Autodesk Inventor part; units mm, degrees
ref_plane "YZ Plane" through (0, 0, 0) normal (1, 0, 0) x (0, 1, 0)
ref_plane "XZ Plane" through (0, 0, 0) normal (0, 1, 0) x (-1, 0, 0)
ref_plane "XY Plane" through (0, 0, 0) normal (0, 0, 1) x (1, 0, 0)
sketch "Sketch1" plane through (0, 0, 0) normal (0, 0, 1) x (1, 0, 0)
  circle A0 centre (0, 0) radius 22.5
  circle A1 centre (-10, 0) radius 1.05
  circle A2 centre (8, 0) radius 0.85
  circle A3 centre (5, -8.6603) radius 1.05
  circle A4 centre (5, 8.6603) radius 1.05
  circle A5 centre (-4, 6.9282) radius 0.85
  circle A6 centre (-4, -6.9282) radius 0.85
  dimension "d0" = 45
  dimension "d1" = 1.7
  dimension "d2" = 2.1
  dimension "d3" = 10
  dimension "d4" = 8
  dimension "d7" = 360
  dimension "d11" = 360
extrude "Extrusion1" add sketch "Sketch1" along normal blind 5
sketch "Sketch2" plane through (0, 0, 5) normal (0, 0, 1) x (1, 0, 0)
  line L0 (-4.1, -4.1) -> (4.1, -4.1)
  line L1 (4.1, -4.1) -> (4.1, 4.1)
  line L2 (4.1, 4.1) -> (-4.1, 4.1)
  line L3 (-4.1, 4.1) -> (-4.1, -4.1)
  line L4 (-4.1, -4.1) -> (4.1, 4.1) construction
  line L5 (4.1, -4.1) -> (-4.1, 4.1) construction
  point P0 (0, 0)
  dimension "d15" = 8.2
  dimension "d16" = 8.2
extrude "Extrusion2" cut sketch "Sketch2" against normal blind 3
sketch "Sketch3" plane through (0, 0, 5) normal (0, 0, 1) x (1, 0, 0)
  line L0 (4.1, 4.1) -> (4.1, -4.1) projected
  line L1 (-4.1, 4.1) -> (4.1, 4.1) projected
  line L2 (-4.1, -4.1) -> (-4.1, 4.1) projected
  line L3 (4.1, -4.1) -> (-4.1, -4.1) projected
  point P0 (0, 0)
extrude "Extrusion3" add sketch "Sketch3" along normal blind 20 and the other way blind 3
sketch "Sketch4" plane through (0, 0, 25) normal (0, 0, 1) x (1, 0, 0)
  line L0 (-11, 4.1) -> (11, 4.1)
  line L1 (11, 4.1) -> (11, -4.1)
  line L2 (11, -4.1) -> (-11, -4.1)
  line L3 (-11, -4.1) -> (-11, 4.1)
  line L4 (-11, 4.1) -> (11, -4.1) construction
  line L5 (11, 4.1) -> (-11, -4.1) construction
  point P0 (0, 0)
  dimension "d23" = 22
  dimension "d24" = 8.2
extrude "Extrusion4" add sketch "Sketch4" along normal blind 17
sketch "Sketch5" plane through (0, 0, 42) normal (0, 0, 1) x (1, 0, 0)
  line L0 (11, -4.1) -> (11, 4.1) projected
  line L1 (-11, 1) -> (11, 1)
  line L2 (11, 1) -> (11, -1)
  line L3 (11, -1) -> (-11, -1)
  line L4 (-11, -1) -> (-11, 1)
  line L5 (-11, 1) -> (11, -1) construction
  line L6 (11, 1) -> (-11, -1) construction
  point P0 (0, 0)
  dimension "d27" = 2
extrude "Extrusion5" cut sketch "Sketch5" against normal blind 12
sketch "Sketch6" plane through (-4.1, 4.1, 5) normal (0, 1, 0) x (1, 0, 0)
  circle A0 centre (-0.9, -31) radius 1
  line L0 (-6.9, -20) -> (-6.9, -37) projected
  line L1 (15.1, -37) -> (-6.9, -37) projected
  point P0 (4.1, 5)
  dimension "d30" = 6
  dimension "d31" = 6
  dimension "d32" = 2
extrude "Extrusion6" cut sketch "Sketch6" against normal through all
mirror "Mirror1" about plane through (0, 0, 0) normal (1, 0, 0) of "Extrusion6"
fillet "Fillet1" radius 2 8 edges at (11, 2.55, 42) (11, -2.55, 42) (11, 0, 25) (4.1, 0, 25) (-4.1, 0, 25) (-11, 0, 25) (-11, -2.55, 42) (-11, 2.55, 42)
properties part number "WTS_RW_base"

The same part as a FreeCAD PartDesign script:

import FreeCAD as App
import Part
import Sketcher

V = App.Vector
Q = App.Units.Quantity


def edges_at(feature, points):
    """Names of the edges that pass closest to the given points."""
    edges = feature.Shape.Edges
    near = lambda p: min(range(len(edges)), key=lambda i: edges[i].distToShape(Part.Vertex(*p))[0])
    return sorted({f"Edge{near(p) + 1}" for p in points})

doc = App.newDocument("Part")
body = doc.addObject("PartDesign::Body", "Body")

# Sketch on XY plane
sketch1 = doc.addObject("Sketcher::SketchObject", "Sketch")
body.addObject(sketch1)
sketch1.AttachmentSupport = (doc.XY_Plane, [""])
sketch1.MapMode = "FlatFace"
sketch1.addGeometry([
    Part.Circle(V(0, 0, 0), V(0, 0, 1), 22.5),  # 0
    Part.Circle(V(-4, -6.9, 0), V(0, 0, 1), 0.8),  # 1
    Part.Circle(V(5, -8.7, 0), V(0, 0, 1), 1.1),  # 2
    Part.Circle(V(-10, 0, 0), V(0, 0, 1), 1.1),  # 3
    Part.Circle(V(-4, 6.9, 0), V(0, 0, 1), 0.8),  # 4
    Part.Circle(V(8, 0, 0), V(0, 0, 1), 0.8),  # 5
    Part.Circle(V(5, 8.7, 0), V(0, 0, 1), 1.1),  # 6
], False)
sketch1.addConstraint([
    Sketcher.Constraint("Coincident", 0, 3, -1, 1),
    Sketcher.Constraint("Equal", 2, 3),
    Sketcher.Constraint("Equal", 1, 4),
    Sketcher.Constraint("Equal", 4, 5),
    Sketcher.Constraint("Equal", 3, 6),
    Sketcher.Constraint("Symmetric", 1, 3, 4, 3, -1),
    Sketcher.Constraint("Symmetric", 2, 3, 6, 3, -1),
    Sketcher.Constraint("PointOnObject", 3, 3, -1),
    Sketcher.Constraint("PointOnObject", 5, 3, -1),
    Sketcher.Constraint("Diameter", 0, Q("45 mm")),
    Sketcher.Constraint("Diameter", 1, Q("1.7 mm")),
    Sketcher.Constraint("Diameter", 2, Q("2.1 mm")),
    Sketcher.Constraint("DistanceX", 3, 3, -1, 1, Q("10 mm")),
    Sketcher.Constraint("DistanceX", -1, 1, 5, 3, Q("8 mm")),
    Sketcher.Constraint("DistanceX", 1, 3, -1, 1, Q("4 mm")),
    Sketcher.Constraint("DistanceX", -1, 1, 2, 3, Q("5 mm")),
    Sketcher.Constraint("DistanceY", 2, 3, 1, 3, Q("1.732 mm")),
    Sketcher.Constraint("DistanceY", 1, 3, -1, 1, Q("6.9282 mm")),
])
pad1 = doc.addObject("PartDesign::Pad", "Pad")
body.addObject(pad1)
pad1.Profile = sketch1
pad1.Length = 5

# Sketch on XY plane
sketch2 = doc.addObject("Sketcher::SketchObject", "Sketch001")
body.addObject(sketch2)
sketch2.AttachmentSupport = (doc.XY_Plane, [""])
sketch2.MapMode = "FlatFace"
sketch2.AttachmentOffset = App.Placement(V(0, 0, 5), App.Rotation())
sketch2.addGeometry([
    Part.LineSegment(V(-4, 4, 0), V(-4, -4, 0)),
    Part.LineSegment(V(-4, -4, 0), V(4, -4, 0)),
    Part.LineSegment(V(4, -4, 0), V(4, 4, 0)),
    Part.LineSegment(V(4, 4, 0), V(-4, 4, 0)),
], False)
sketch2.addConstraint([
    Sketcher.Constraint("Coincident", 0, 2, 1, 1),
    Sketcher.Constraint("Coincident", 1, 2, 2, 1),
    Sketcher.Constraint("Coincident", 2, 2, 3, 1),
    Sketcher.Constraint("Coincident", 3, 2, 0, 1),
    Sketcher.Constraint("Vertical", 0),
    Sketcher.Constraint("Horizontal", 1),
    Sketcher.Constraint("Vertical", 2),
    Sketcher.Constraint("Horizontal", 3),
    Sketcher.Constraint("Symmetric", 0, 2, 2, 2, -1, 1),
    Sketcher.Constraint("Equal", 3, 0),
    Sketcher.Constraint("DistanceX", 1, 1, 1, 2, Q("8.2 mm")),
])
pocket1 = doc.addObject("PartDesign::Pocket", "Pocket")
body.addObject(pocket1)
pocket1.Profile = sketch2
pocket1.Length = 3

# Sketch on XY plane
sketch3 = doc.addObject("Sketcher::SketchObject", "Sketch002")
body.addObject(sketch3)
sketch3.AttachmentSupport = (doc.XY_Plane, [""])
sketch3.MapMode = "FlatFace"
sketch3.AttachmentOffset = App.Placement(V(0, 0, 5), App.Rotation())
sketch3.addGeometry([
    Part.LineSegment(V(4, -4, 0), V(4, 4, 0)),
    Part.LineSegment(V(4, 4, 0), V(-4, 4, 0)),
    Part.LineSegment(V(-4, 4, 0), V(-4, -4, 0)),
    Part.LineSegment(V(-4, -4, 0), V(4, -4, 0)),
], False)
sketch3.addConstraint([
    Sketcher.Constraint("Coincident", 0, 2, 1, 1),
    Sketcher.Constraint("Coincident", 1, 2, 2, 1),
    Sketcher.Constraint("Coincident", 2, 2, 3, 1),
    Sketcher.Constraint("Coincident", 3, 2, 0, 1),
    Sketcher.Constraint("Vertical", 0),
    Sketcher.Constraint("Horizontal", 1),
    Sketcher.Constraint("Vertical", 2),
    Sketcher.Constraint("Horizontal", 3),
    Sketcher.Constraint("Symmetric", 0, 2, 2, 2, -1, 1),
    Sketcher.Constraint("Equal", 3, 0),
    Sketcher.Constraint("DistanceX", 1, 2, 1, 1, Q("8.2 mm")),
])
pad2 = doc.addObject("PartDesign::Pad", "Pad001")
body.addObject(pad2)
pad2.Profile = sketch3
pad2.Type = "TwoLengths"
pad2.Length = 20
pad2.Length2 = 3

# Sketch on XY plane
sketch4 = doc.addObject("Sketcher::SketchObject", "Sketch003")
body.addObject(sketch4)
sketch4.AttachmentSupport = (doc.XY_Plane, [""])
sketch4.MapMode = "FlatFace"
sketch4.AttachmentOffset = App.Placement(V(0, 0, 25), App.Rotation())
sketch4.addGeometry([
    Part.LineSegment(V(11, 4, 0), V(-11, 4, 0)),
    Part.LineSegment(V(-11, 4, 0), V(-11, -4, 0)),
    Part.LineSegment(V(-11, -4, 0), V(11, -4, 0)),
    Part.LineSegment(V(11, -4, 0), V(11, 4, 0)),
], False)
sketch4.addConstraint([
    Sketcher.Constraint("Coincident", 0, 2, 1, 1),
    Sketcher.Constraint("Coincident", 1, 2, 2, 1),
    Sketcher.Constraint("Coincident", 2, 2, 3, 1),
    Sketcher.Constraint("Coincident", 3, 2, 0, 1),
    Sketcher.Constraint("Horizontal", 0),
    Sketcher.Constraint("Vertical", 1),
    Sketcher.Constraint("Horizontal", 2),
    Sketcher.Constraint("Vertical", 3),
    Sketcher.Constraint("Symmetric", 0, 2, 2, 2, -1, 1),
    Sketcher.Constraint("DistanceX", 0, 2, 0, 1, Q("22 mm")),
    Sketcher.Constraint("DistanceY", 1, 2, 1, 1, Q("8.2 mm")),
])
pad3 = doc.addObject("PartDesign::Pad", "Pad002")
body.addObject(pad3)
pad3.Profile = sketch4
pad3.Length = 17

# Sketch on XY plane
sketch5 = doc.addObject("Sketcher::SketchObject", "Sketch004")
body.addObject(sketch5)
sketch5.AttachmentSupport = (doc.XY_Plane, [""])
sketch5.MapMode = "FlatFace"
sketch5.AttachmentOffset = App.Placement(V(0, 0, 42), App.Rotation())
sketch5.addGeometry([
    Part.LineSegment(V(-11, -1, 0), V(11, -1, 0)),
    Part.LineSegment(V(11, -1, 0), V(11, 1, 0)),
    Part.LineSegment(V(11, 1, 0), V(-11, 1, 0)),
    Part.LineSegment(V(-11, 1, 0), V(-11, -1, 0)),
], False)
sketch5.addConstraint([
    Sketcher.Constraint("Coincident", 0, 2, 1, 1),
    Sketcher.Constraint("Coincident", 1, 2, 2, 1),
    Sketcher.Constraint("Coincident", 2, 2, 3, 1),
    Sketcher.Constraint("Coincident", 3, 2, 0, 1),
    Sketcher.Constraint("Horizontal", 0),
    Sketcher.Constraint("Vertical", 1),
    Sketcher.Constraint("Horizontal", 2),
    Sketcher.Constraint("Vertical", 3),
    Sketcher.Constraint("Symmetric", 0, 2, 2, 2, -1, 1),
    Sketcher.Constraint("DistanceY", 1, 1, 1, 2, Q("2 mm")),
    Sketcher.Constraint("DistanceX", 0, 1, 0, 2, Q("22 mm")),
])
pocket2 = doc.addObject("PartDesign::Pocket", "Pocket001")
body.addObject(pocket2)
pocket2.Profile = sketch5
pocket2.Length = 12

# Sketch on XZ plane
sketch6 = doc.addObject("Sketcher::SketchObject", "Sketch005")
body.addObject(sketch6)
sketch6.AttachmentSupport = (doc.XZ_Plane, [""])
sketch6.MapMode = "FlatFace"
sketch6.AttachmentOffset = App.Placement(V(0, 0, -4.1), App.Rotation())
sketch6.addGeometry(Part.Circle(V(-5, 36, 0), V(0, 0, 1), 1), False)
sketch6.addConstraint([
    Sketcher.Constraint("Diameter", 0, Q("2 mm")),
    Sketcher.Constraint("DistanceX", 0, 3, -1, 1, Q("5 mm")),
    Sketcher.Constraint("DistanceY", -1, 1, 0, 3, Q("36 mm")),
])
pocket3 = doc.addObject("PartDesign::Pocket", "Pocket002")
body.addObject(pocket3)
pocket3.Profile = sketch6
pocket3.Type = "ThroughAll"
pocket3.Reversed = True
doc.recompute()

mirrored = doc.addObject("PartDesign::Mirrored", "Mirrored")
body.addObject(mirrored)
mirrored.Originals = [pocket3]
mirrored.MirrorPlane = (doc.YZ_Plane, [""])
body.Tip = mirrored
doc.recompute()

fillet = doc.addObject("PartDesign::Fillet", "Fillet")
body.addObject(fillet)
fillet.Base = (mirrored, edges_at(mirrored, [
    (11, 2.55, 42),
    (11, -2.55, 42),
    (11, 0, 25),
    (4.1, 0, 25),
    (-4.1, 0, 25),
    (-11, 0, 25),
    (-11, -2.55, 42),
    (-11, 2.55, 42),
]))
fillet.Radius = 2

doc.recompute()
